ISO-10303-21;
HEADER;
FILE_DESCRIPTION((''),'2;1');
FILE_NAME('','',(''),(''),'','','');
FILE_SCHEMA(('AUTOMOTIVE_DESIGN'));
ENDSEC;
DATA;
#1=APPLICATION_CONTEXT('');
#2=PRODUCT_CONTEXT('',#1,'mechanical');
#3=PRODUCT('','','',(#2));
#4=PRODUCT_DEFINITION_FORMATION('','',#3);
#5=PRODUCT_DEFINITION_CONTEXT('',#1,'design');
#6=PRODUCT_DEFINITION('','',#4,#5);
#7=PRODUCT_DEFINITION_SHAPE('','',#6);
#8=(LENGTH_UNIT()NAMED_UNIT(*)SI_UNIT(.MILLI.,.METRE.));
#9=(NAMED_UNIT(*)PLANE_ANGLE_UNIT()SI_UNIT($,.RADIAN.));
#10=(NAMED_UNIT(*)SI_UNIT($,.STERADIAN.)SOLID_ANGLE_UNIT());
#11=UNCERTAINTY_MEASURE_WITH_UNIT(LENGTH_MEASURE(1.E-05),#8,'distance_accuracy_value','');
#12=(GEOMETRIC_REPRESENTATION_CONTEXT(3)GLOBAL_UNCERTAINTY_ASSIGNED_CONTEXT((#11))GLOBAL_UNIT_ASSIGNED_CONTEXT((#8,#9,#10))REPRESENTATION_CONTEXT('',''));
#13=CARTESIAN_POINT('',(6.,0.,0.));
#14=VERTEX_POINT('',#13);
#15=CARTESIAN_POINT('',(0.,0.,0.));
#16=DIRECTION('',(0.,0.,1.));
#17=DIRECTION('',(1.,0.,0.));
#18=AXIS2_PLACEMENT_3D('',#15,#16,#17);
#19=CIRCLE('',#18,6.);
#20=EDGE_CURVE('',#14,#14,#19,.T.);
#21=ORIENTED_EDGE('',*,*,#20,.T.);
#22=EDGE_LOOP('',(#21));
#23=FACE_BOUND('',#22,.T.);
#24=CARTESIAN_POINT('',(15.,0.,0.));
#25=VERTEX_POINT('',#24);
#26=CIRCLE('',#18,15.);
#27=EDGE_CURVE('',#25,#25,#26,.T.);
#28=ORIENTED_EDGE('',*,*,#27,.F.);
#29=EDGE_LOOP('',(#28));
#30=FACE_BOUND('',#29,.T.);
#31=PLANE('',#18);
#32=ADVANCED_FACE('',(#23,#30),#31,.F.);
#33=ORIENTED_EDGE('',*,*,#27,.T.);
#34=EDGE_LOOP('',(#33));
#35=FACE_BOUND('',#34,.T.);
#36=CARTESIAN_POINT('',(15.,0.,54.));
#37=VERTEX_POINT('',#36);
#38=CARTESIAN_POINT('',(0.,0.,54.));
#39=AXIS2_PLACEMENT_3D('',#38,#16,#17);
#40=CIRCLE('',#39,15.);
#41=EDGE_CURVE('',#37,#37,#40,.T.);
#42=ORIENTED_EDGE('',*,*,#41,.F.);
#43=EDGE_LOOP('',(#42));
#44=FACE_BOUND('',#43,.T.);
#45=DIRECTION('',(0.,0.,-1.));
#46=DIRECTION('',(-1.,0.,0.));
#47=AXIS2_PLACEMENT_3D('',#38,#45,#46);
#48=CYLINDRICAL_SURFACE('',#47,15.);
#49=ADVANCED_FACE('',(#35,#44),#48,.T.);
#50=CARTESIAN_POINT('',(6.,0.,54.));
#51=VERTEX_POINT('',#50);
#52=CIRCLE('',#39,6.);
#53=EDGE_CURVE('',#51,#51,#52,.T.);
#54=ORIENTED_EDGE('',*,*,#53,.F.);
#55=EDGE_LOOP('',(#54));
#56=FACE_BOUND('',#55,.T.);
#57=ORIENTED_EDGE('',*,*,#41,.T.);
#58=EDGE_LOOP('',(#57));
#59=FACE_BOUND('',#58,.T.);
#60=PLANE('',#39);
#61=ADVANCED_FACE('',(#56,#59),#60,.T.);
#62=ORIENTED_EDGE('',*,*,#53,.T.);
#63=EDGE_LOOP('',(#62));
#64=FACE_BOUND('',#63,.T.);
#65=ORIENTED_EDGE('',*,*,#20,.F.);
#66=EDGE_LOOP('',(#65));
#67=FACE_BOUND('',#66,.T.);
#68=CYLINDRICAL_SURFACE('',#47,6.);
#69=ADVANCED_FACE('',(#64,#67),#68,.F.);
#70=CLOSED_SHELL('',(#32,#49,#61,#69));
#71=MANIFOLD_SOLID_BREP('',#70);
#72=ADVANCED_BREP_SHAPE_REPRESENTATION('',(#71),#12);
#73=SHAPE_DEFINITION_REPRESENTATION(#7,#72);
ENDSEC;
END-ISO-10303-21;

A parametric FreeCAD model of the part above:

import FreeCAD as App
import Part
import Sketcher

V = App.Vector

doc = App.newDocument("Part")
params = doc.addObject("Spreadsheet::Sheet", "Params")
for row, (alias, value) in enumerate([
    ("sketch1_diameter", "30 mm"),
    ("sketch1_diameter2", "12 mm"),
    ("pad1_length", "54 mm"),
], start=1):
    params.set(f"A{row}", alias)
    params.set(f"B{row}", "=" + value)
    params.setAlias(f"B{row}", alias)

body = doc.addObject("PartDesign::Body", "Body")

# Sketch on XY plane
sketch1 = body.newObject("Sketcher::SketchObject", "Sketch")
sketch1.AttachmentSupport = (doc.getObject("XY_Plane"), [""])
sketch1.MapMode = "FlatFace"
sketch1.addGeometry([
    Part.Circle(V(0, 0, 0), V(0, 0, 1), 15),
    Part.Circle(V(0, 0, 0), V(0, 0, 1), 6),
], False)
sketch1.addConstraint([
    Sketcher.Constraint("Coincident", 0, 3, -1, 1),
    Sketcher.Constraint("Coincident", 1, 3, -1, 1),
    Sketcher.Constraint("Diameter", 0, 30.0),
    Sketcher.Constraint("Diameter", 1, 12.0),
])
sketch1.setExpression("Constraints[2]", "Params.sketch1_diameter")
sketch1.setExpression("Constraints[3]", "Params.sketch1_diameter2")
pad1 = body.newObject("PartDesign::Pad", "Pad")
pad1.Profile = sketch1
pad1.setExpression("Length", "Params.pad1_length")

doc.recompute()
